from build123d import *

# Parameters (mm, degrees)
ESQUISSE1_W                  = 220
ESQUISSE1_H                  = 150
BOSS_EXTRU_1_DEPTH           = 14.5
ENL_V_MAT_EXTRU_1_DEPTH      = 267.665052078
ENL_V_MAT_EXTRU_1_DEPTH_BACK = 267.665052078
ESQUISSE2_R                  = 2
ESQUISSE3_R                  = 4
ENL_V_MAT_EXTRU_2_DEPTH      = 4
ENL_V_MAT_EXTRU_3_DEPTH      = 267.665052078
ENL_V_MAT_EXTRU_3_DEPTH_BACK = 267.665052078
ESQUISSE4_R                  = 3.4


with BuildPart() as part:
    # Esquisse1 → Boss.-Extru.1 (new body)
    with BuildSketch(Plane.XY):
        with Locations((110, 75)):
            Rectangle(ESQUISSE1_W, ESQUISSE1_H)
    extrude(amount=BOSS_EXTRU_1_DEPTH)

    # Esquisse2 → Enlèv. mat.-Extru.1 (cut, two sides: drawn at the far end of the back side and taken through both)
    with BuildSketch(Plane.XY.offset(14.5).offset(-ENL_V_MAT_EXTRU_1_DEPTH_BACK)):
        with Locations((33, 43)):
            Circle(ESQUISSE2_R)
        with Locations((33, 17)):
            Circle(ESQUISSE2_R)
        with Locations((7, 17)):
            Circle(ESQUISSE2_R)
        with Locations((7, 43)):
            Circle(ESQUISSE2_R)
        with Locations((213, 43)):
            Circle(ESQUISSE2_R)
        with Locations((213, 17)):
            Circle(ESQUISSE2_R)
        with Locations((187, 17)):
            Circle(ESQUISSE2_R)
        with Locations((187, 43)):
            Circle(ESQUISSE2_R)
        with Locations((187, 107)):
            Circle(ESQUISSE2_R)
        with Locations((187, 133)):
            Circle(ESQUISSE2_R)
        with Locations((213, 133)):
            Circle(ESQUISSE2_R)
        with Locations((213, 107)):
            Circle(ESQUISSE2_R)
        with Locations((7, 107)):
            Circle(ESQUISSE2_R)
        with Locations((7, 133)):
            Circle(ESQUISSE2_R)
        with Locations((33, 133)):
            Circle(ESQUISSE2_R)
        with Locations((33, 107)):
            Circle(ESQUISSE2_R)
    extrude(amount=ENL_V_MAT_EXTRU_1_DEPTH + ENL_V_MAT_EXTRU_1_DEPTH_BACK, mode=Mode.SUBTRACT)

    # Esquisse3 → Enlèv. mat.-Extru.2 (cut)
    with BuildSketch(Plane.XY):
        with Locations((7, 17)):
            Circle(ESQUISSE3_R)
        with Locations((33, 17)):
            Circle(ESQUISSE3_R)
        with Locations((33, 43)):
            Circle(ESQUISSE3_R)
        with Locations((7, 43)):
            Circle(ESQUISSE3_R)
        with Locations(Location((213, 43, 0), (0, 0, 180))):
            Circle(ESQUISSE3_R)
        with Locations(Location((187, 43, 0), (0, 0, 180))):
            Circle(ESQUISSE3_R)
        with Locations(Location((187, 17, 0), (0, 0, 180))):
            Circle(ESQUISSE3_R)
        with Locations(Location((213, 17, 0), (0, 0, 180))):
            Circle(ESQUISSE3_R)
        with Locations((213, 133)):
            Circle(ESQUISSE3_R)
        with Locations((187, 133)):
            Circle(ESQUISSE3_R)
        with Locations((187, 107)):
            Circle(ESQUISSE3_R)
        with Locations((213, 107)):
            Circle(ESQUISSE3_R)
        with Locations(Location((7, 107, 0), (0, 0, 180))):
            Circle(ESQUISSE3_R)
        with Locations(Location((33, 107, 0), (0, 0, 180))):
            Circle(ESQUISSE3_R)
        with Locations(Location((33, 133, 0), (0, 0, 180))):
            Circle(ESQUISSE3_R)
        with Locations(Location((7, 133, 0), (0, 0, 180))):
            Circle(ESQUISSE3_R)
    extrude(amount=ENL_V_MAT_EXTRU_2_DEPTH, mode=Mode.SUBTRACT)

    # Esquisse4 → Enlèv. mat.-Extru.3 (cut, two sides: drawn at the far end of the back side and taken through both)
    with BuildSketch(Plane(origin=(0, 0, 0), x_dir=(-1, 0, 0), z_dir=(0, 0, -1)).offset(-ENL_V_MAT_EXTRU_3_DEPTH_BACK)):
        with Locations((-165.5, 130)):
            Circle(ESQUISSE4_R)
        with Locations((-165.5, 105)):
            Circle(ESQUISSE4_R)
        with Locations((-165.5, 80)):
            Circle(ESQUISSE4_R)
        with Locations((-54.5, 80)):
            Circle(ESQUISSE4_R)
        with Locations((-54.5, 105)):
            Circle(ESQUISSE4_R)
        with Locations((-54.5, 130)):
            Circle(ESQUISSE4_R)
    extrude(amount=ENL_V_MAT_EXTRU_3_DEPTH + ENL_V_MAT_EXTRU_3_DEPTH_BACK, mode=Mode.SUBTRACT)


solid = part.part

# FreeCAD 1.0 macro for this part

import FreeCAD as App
import Part
import Sketcher
Q = App.Units.Quantity

doc = App.newDocument("Part")
params = doc.addObject("Spreadsheet::Sheet", "Params")
for row, (alias, value) in enumerate([
    ("sketch1_width", "220 mm"),
    ("sketch1_height", "150 mm"),
    ("pad1_length", "14.5 mm"),
    ("sketch2_diameter", "4 mm"),
    ("sketch3_diameter", "8 mm"),
    ("pocket2_length", "4 mm"),
    ("sketch4_diameter", "6.8 mm"),
], start=1):
    params.set(f"A{row}", alias)
    params.set(f"B{row}", "=" + value)
    params.setAlias(f"B{row}", alias)

body = doc.addObject("PartDesign::Body", "Body")

sketch1 = doc.addObject("Sketcher::SketchObject", "Sketch")
body.addObject(sketch1)
sketch1.AttachmentSupport = (doc.XY_Plane, [""])
sketch1.MapMode = "FlatFace"
sketch1.addGeometry([
    Part.LineSegment(App.Vector(0, 150, 0), App.Vector(0, 0, 0)),
    Part.LineSegment(App.Vector(0, 0, 0), App.Vector(220, 0, 0)),
    Part.LineSegment(App.Vector(220, 0, 0), App.Vector(220, 150, 0)),
    Part.LineSegment(App.Vector(220, 150, 0), App.Vector(0, 150, 0)),
], False)
sketch1.addConstraint([
    Sketcher.Constraint("Coincident", 0, 2, 1, 1),
    Sketcher.Constraint("Coincident", 1, 2, 2, 1),
    Sketcher.Constraint("Coincident", 2, 2, 3, 1),
    Sketcher.Constraint("Coincident", 3, 2, 0, 1),
    Sketcher.Constraint("Vertical", 0),
    Sketcher.Constraint("Horizontal", 1),
    Sketcher.Constraint("Vertical", 2),
    Sketcher.Constraint("Horizontal", 3),
    Sketcher.Constraint("Coincident", 0, 2, -1, 1),
    Sketcher.Constraint("DistanceX", 1, 1, 1, 2, Q("220 mm")),
    Sketcher.Constraint("DistanceY", 0, 2, 0, 1, Q("150 mm")),
])
sketch1.setExpression("Constraints[9]", "Params.sketch1_width")
sketch1.setExpression("Constraints[10]", "Params.sketch1_height")
pad1 = doc.addObject("PartDesign::Pad", "Pad")
body.addObject(pad1)
pad1.Profile = sketch1
pad1.setExpression("Length", "Params.pad1_length")

sketch2 = doc.addObject("Sketcher::SketchObject", "Sketch001")
body.addObject(sketch2)
sketch2.AttachmentSupport = (doc.XY_Plane, [""])
sketch2.MapMode = "FlatFace"
sketch2.AttachmentOffset = App.Placement(App.Vector(0, 0, 14.5), App.Rotation())
sketch2.addGeometry([
    Part.Circle(App.Vector(33, 43, 0), App.Vector(0, 0, 1), 2),
    Part.Circle(App.Vector(33, 17, 0), App.Vector(0, 0, 1), 2),
    Part.Circle(App.Vector(7, 17, 0), App.Vector(0, 0, 1), 2),
    Part.Circle(App.Vector(7, 43, 0), App.Vector(0, 0, 1), 2),
    Part.Circle(App.Vector(213, 43, 0), App.Vector(0, 0, 1), 2),
    Part.Circle(App.Vector(213, 17, 0), App.Vector(0, 0, 1), 2),
    Part.Circle(App.Vector(187, 17, 0), App.Vector(0, 0, 1), 2),
    Part.Circle(App.Vector(187, 43, 0), App.Vector(0, 0, 1), 2),
    Part.Circle(App.Vector(187, 107, 0), App.Vector(0, 0, 1), 2),
    Part.Circle(App.Vector(187, 133, 0), App.Vector(0, 0, 1), 2),
    Part.Circle(App.Vector(213, 133, 0), App.Vector(0, 0, 1), 2),
    Part.Circle(App.Vector(213, 107, 0), App.Vector(0, 0, 1), 2),
    Part.Circle(App.Vector(7, 107, 0), App.Vector(0, 0, 1), 2),
    Part.Circle(App.Vector(7, 133, 0), App.Vector(0, 0, 1), 2),
    Part.Circle(App.Vector(33, 133, 0), App.Vector(0, 0, 1), 2),
    Part.Circle(App.Vector(33, 107, 0), App.Vector(0, 0, 1), 2),
], False)
sketch2.addConstraint([
    Sketcher.Constraint("Equal", 0, 1),
    Sketcher.Constraint("Equal", 1, 2),
    Sketcher.Constraint("Equal", 2, 3),
    Sketcher.Constraint("Equal", 3, 4),
    Sketcher.Constraint("Equal", 4, 5),
    Sketcher.Constraint("Equal", 5, 6),
    Sketcher.Constraint("Equal", 6, 7),
    Sketcher.Constraint("Equal", 7, 8),
    Sketcher.Constraint("Equal", 8, 9),
    Sketcher.Constraint("Equal", 9, 10),
    Sketcher.Constraint("Equal", 10, 11),
    Sketcher.Constraint("Equal", 11, 12),
    Sketcher.Constraint("Equal", 12, 13),
    Sketcher.Constraint("Equal", 13, 14),
    Sketcher.Constraint("Equal", 14, 15),
    Sketcher.Constraint("Horizontal", 1, 3, 2, 3),
    Sketcher.Constraint("Horizontal", 0, 3, 3, 3),
    Sketcher.Constraint("Horizontal", 3, 3, 4, 3),
    Sketcher.Constraint("Horizontal", 2, 3, 5, 3),
    Sketcher.Constraint("Horizontal", 5, 3, 6, 3),
    Sketcher.Constraint("Horizontal", 4, 3, 7, 3),
    Sketcher.Constraint("Horizontal", 9, 3, 10, 3),
    Sketcher.Constraint("Horizontal", 8, 3, 11, 3),
    Sketcher.Constraint("Horizontal", 11, 3, 12, 3),
    Sketcher.Constraint("Horizontal", 10, 3, 13, 3),
    Sketcher.Constraint("Horizontal", 13, 3, 14, 3),
    Sketcher.Constraint("Horizontal", 12, 3, 15, 3),
    Sketcher.Constraint("Vertical", 0, 3, 1, 3),
    Sketcher.Constraint("Vertical", 2, 3, 3, 3),
    Sketcher.Constraint("Vertical", 4, 3, 5, 3),
    Sketcher.Constraint("Vertical", 6, 3, 7, 3),
    Sketcher.Constraint("Vertical", 7, 3, 8, 3),
    Sketcher.Constraint("Vertical", 8, 3, 9, 3),
    Sketcher.Constraint("Vertical", 5, 3, 10, 3),
    Sketcher.Constraint("Vertical", 10, 3, 11, 3),
    Sketcher.Constraint("Vertical", 3, 3, 12, 3),
    Sketcher.Constraint("Vertical", 12, 3, 13, 3),
    Sketcher.Constraint("Vertical", 1, 3, 14, 3),
    Sketcher.Constraint("Vertical", 14, 3, 15, 3),
    Sketcher.Constraint("Diameter", 0, Q("4 mm")),
    Sketcher.Constraint("DistanceX", -1, 1, 0, 3, Q("33 mm")),
    Sketcher.Constraint("DistanceY", -1, 1, 0, 3, Q("43 mm")),
    Sketcher.Constraint("DistanceY", -1, 1, 1, 3, Q("17 mm")),
    Sketcher.Constraint("DistanceX", -1, 1, 2, 3, Q("7 mm")),
    Sketcher.Constraint("DistanceX", -1, 1, 4, 3, Q("213 mm")),
    Sketcher.Constraint("DistanceX", -1, 1, 6, 3, Q("187 mm")),
    Sketcher.Constraint("DistanceY", -1, 1, 8, 3, Q("107 mm")),
    Sketcher.Constraint("DistanceY", -1, 1, 9, 3, Q("133 mm")),
])
sketch2.setExpression("Constraints[39]", "Params.sketch2_diameter")
pocket1 = doc.addObject("PartDesign::Pocket", "Pocket")
body.addObject(pocket1)
pocket1.Profile = sketch2
pocket1.Type = "ThroughAll"
pocket1.Midplane = True

sketch3 = doc.addObject("Sketcher::SketchObject", "Sketch002")
body.addObject(sketch3)
sketch3.AttachmentSupport = (doc.XY_Plane, [""])
sketch3.MapMode = "FlatFace"
sketch3.addGeometry([
    Part.Circle(App.Vector(7, 17, 0), App.Vector(0, 0, 1), 4),
    Part.Circle(App.Vector(33, 17, 0), App.Vector(0, 0, 1), 4),
    Part.Circle(App.Vector(33, 43, 0), App.Vector(0, 0, 1), 4),
    Part.Circle(App.Vector(7, 43, 0), App.Vector(0, 0, 1), 4),
    Part.Circle(App.Vector(213, 43, 0), App.Vector(0, 0, 1), 4),
    Part.Circle(App.Vector(187, 43, 0), App.Vector(0, 0, 1), 4),
    Part.Circle(App.Vector(187, 17, 0), App.Vector(0, 0, 1), 4),
    Part.Circle(App.Vector(213, 17, 0), App.Vector(0, 0, 1), 4),
    Part.Circle(App.Vector(213, 133, 0), App.Vector(0, 0, 1), 4),
    Part.Circle(App.Vector(187, 133, 0), App.Vector(0, 0, 1), 4),
    Part.Circle(App.Vector(187, 107, 0), App.Vector(0, 0, 1), 4),
    Part.Circle(App.Vector(213, 107, 0), App.Vector(0, 0, 1), 4),
    Part.Circle(App.Vector(7, 107, 0), App.Vector(0, 0, 1), 4),
    Part.Circle(App.Vector(33, 107, 0), App.Vector(0, 0, 1), 4),
    Part.Circle(App.Vector(33, 133, 0), App.Vector(0, 0, 1), 4),
    Part.Circle(App.Vector(7, 133, 0), App.Vector(0, 0, 1), 4),
], False)
sketch3.addConstraint([
    Sketcher.Constraint("Equal", 0, 1),
    Sketcher.Constraint("Equal", 1, 2),
    Sketcher.Constraint("Equal", 2, 3),
    Sketcher.Constraint("Equal", 3, 4),
    Sketcher.Constraint("Equal", 4, 5),
    Sketcher.Constraint("Equal", 5, 6),
    Sketcher.Constraint("Equal", 6, 7),
    Sketcher.Constraint("Equal", 7, 8),
    Sketcher.Constraint("Equal", 8, 9),
    Sketcher.Constraint("Equal", 9, 10),
    Sketcher.Constraint("Equal", 10, 11),
    Sketcher.Constraint("Equal", 11, 12),
    Sketcher.Constraint("Equal", 12, 13),
    Sketcher.Constraint("Equal", 13, 14),
    Sketcher.Constraint("Equal", 14, 15),
    Sketcher.Constraint("Horizontal", 0, 3, 1, 3),
    Sketcher.Constraint("Horizontal", 2, 3, 3, 3),
    Sketcher.Constraint("Horizontal", 3, 3, 4, 3),
    Sketcher.Constraint("Horizontal", 4, 3, 5, 3),
    Sketcher.Constraint("Horizontal", 1, 3, 6, 3),
    Sketcher.Constraint("Horizontal", 6, 3, 7, 3),
    Sketcher.Constraint("Horizontal", 8, 3, 9, 3),
    Sketcher.Constraint("Horizontal", 10, 3, 11, 3),
    Sketcher.Constraint("Horizontal", 11, 3, 12, 3),
    Sketcher.Constraint("Horizontal", 12, 3, 13, 3),
    Sketcher.Constraint("Horizontal", 9, 3, 14, 3),
    Sketcher.Constraint("Horizontal", 14, 3, 15, 3),
    Sketcher.Constraint("Vertical", 1, 3, 2, 3),
    Sketcher.Constraint("Vertical", 0, 3, 3, 3),
    Sketcher.Constraint("Vertical", 5, 3, 6, 3),
    Sketcher.Constraint("Vertical", 4, 3, 7, 3),
    Sketcher.Constraint("Vertical", 7, 3, 8, 3),
    Sketcher.Constraint("Vertical", 6, 3, 9, 3),
    Sketcher.Constraint("Vertical", 9, 3, 10, 3),
    Sketcher.Constraint("Vertical", 8, 3, 11, 3),
    Sketcher.Constraint("Vertical", 3, 3, 12, 3),
    Sketcher.Constraint("Vertical", 2, 3, 13, 3),
    Sketcher.Constraint("Vertical", 13, 3, 14, 3),
    Sketcher.Constraint("Vertical", 12, 3, 15, 3),
    Sketcher.Constraint("Diameter", 0, Q("8 mm")),
    Sketcher.Constraint("DistanceX", -1, 1, 0, 3, Q("7 mm")),
    Sketcher.Constraint("DistanceY", -1, 1, 0, 3, Q("17 mm")),
    Sketcher.Constraint("DistanceX", -1, 1, 1, 3, Q("33 mm")),
    Sketcher.Constraint("DistanceY", -1, 1, 2, 3, Q("43 mm")),
    Sketcher.Constraint("DistanceX", -1, 1, 4, 3, Q("213 mm")),
    Sketcher.Constraint("DistanceX", -1, 1, 5, 3, Q("187 mm")),
    Sketcher.Constraint("DistanceY", -1, 1, 8, 3, Q("133 mm")),
    Sketcher.Constraint("DistanceY", -1, 1, 10, 3, Q("107 mm")),
])
sketch3.setExpression("Constraints[39]", "Params.sketch3_diameter")
pocket2 = doc.addObject("PartDesign::Pocket", "Pocket001")
body.addObject(pocket2)
pocket2.Profile = sketch3
pocket2.setExpression("Length", "Params.pocket2_length")
pocket2.Reversed = True

sketch4 = doc.addObject("Sketcher::SketchObject", "Sketch003")
body.addObject(sketch4)
sketch4.AttachmentSupport = (doc.XY_Plane, [""])
sketch4.MapMode = "FlatFace"
sketch4.addGeometry([
    Part.Circle(App.Vector(165.5, 130, 0), App.Vector(0, 0, 1), 3.4),
    Part.Circle(App.Vector(165.5, 105, 0), App.Vector(0, 0, 1), 3.4),
    Part.Circle(App.Vector(165.5, 80, 0), App.Vector(0, 0, 1), 3.4),
    Part.Circle(App.Vector(54.5, 80, 0), App.Vector(0, 0, 1), 3.4),
    Part.Circle(App.Vector(54.5, 105, 0), App.Vector(0, 0, 1), 3.4),
    Part.Circle(App.Vector(54.5, 130, 0), App.Vector(0, 0, 1), 3.4),
], False)
sketch4.addConstraint([
    Sketcher.Constraint("Equal", 0, 1),
    Sketcher.Constraint("Equal", 1, 2),
    Sketcher.Constraint("Equal", 2, 3),
    Sketcher.Constraint("Equal", 3, 4),
    Sketcher.Constraint("Equal", 4, 5),
    Sketcher.Constraint("Horizontal", 2, 3, 3, 3),
    Sketcher.Constraint("Horizontal", 1, 3, 4, 3),
    Sketcher.Constraint("Horizontal", 0, 3, 5, 3),
    Sketcher.Constraint("Vertical", 0, 3, 1, 3),
    Sketcher.Constraint("Vertical", 1, 3, 2, 3),
    Sketcher.Constraint("Vertical", 3, 3, 4, 3),
    Sketcher.Constraint("Vertical", 4, 3, 5, 3),
    Sketcher.Constraint("Diameter", 0, Q("6.8 mm")),
    Sketcher.Constraint("DistanceY", -1, 1, 0, 3, Q("130 mm")),
    Sketcher.Constraint("DistanceY", -1, 1, 1, 3, Q("105 mm")),
    Sketcher.Constraint("DistanceY", -1, 1, 2, 3, Q("80 mm")),
    Sketcher.Constraint("DistanceX", 3, 3, 2, 3, Q("111 mm")),
    Sketcher.Constraint("DistanceX", -1, 1, 0, 3, Q("165.5 mm")),
])
sketch4.setExpression("Constraints[12]", "Params.sketch4_diameter")
pocket3 = doc.addObject("PartDesign::Pocket", "Pocket002")
body.addObject(pocket3)
pocket3.Profile = sketch4
pocket3.Type = "ThroughAll"
pocket3.Midplane = True

doc.recompute()
